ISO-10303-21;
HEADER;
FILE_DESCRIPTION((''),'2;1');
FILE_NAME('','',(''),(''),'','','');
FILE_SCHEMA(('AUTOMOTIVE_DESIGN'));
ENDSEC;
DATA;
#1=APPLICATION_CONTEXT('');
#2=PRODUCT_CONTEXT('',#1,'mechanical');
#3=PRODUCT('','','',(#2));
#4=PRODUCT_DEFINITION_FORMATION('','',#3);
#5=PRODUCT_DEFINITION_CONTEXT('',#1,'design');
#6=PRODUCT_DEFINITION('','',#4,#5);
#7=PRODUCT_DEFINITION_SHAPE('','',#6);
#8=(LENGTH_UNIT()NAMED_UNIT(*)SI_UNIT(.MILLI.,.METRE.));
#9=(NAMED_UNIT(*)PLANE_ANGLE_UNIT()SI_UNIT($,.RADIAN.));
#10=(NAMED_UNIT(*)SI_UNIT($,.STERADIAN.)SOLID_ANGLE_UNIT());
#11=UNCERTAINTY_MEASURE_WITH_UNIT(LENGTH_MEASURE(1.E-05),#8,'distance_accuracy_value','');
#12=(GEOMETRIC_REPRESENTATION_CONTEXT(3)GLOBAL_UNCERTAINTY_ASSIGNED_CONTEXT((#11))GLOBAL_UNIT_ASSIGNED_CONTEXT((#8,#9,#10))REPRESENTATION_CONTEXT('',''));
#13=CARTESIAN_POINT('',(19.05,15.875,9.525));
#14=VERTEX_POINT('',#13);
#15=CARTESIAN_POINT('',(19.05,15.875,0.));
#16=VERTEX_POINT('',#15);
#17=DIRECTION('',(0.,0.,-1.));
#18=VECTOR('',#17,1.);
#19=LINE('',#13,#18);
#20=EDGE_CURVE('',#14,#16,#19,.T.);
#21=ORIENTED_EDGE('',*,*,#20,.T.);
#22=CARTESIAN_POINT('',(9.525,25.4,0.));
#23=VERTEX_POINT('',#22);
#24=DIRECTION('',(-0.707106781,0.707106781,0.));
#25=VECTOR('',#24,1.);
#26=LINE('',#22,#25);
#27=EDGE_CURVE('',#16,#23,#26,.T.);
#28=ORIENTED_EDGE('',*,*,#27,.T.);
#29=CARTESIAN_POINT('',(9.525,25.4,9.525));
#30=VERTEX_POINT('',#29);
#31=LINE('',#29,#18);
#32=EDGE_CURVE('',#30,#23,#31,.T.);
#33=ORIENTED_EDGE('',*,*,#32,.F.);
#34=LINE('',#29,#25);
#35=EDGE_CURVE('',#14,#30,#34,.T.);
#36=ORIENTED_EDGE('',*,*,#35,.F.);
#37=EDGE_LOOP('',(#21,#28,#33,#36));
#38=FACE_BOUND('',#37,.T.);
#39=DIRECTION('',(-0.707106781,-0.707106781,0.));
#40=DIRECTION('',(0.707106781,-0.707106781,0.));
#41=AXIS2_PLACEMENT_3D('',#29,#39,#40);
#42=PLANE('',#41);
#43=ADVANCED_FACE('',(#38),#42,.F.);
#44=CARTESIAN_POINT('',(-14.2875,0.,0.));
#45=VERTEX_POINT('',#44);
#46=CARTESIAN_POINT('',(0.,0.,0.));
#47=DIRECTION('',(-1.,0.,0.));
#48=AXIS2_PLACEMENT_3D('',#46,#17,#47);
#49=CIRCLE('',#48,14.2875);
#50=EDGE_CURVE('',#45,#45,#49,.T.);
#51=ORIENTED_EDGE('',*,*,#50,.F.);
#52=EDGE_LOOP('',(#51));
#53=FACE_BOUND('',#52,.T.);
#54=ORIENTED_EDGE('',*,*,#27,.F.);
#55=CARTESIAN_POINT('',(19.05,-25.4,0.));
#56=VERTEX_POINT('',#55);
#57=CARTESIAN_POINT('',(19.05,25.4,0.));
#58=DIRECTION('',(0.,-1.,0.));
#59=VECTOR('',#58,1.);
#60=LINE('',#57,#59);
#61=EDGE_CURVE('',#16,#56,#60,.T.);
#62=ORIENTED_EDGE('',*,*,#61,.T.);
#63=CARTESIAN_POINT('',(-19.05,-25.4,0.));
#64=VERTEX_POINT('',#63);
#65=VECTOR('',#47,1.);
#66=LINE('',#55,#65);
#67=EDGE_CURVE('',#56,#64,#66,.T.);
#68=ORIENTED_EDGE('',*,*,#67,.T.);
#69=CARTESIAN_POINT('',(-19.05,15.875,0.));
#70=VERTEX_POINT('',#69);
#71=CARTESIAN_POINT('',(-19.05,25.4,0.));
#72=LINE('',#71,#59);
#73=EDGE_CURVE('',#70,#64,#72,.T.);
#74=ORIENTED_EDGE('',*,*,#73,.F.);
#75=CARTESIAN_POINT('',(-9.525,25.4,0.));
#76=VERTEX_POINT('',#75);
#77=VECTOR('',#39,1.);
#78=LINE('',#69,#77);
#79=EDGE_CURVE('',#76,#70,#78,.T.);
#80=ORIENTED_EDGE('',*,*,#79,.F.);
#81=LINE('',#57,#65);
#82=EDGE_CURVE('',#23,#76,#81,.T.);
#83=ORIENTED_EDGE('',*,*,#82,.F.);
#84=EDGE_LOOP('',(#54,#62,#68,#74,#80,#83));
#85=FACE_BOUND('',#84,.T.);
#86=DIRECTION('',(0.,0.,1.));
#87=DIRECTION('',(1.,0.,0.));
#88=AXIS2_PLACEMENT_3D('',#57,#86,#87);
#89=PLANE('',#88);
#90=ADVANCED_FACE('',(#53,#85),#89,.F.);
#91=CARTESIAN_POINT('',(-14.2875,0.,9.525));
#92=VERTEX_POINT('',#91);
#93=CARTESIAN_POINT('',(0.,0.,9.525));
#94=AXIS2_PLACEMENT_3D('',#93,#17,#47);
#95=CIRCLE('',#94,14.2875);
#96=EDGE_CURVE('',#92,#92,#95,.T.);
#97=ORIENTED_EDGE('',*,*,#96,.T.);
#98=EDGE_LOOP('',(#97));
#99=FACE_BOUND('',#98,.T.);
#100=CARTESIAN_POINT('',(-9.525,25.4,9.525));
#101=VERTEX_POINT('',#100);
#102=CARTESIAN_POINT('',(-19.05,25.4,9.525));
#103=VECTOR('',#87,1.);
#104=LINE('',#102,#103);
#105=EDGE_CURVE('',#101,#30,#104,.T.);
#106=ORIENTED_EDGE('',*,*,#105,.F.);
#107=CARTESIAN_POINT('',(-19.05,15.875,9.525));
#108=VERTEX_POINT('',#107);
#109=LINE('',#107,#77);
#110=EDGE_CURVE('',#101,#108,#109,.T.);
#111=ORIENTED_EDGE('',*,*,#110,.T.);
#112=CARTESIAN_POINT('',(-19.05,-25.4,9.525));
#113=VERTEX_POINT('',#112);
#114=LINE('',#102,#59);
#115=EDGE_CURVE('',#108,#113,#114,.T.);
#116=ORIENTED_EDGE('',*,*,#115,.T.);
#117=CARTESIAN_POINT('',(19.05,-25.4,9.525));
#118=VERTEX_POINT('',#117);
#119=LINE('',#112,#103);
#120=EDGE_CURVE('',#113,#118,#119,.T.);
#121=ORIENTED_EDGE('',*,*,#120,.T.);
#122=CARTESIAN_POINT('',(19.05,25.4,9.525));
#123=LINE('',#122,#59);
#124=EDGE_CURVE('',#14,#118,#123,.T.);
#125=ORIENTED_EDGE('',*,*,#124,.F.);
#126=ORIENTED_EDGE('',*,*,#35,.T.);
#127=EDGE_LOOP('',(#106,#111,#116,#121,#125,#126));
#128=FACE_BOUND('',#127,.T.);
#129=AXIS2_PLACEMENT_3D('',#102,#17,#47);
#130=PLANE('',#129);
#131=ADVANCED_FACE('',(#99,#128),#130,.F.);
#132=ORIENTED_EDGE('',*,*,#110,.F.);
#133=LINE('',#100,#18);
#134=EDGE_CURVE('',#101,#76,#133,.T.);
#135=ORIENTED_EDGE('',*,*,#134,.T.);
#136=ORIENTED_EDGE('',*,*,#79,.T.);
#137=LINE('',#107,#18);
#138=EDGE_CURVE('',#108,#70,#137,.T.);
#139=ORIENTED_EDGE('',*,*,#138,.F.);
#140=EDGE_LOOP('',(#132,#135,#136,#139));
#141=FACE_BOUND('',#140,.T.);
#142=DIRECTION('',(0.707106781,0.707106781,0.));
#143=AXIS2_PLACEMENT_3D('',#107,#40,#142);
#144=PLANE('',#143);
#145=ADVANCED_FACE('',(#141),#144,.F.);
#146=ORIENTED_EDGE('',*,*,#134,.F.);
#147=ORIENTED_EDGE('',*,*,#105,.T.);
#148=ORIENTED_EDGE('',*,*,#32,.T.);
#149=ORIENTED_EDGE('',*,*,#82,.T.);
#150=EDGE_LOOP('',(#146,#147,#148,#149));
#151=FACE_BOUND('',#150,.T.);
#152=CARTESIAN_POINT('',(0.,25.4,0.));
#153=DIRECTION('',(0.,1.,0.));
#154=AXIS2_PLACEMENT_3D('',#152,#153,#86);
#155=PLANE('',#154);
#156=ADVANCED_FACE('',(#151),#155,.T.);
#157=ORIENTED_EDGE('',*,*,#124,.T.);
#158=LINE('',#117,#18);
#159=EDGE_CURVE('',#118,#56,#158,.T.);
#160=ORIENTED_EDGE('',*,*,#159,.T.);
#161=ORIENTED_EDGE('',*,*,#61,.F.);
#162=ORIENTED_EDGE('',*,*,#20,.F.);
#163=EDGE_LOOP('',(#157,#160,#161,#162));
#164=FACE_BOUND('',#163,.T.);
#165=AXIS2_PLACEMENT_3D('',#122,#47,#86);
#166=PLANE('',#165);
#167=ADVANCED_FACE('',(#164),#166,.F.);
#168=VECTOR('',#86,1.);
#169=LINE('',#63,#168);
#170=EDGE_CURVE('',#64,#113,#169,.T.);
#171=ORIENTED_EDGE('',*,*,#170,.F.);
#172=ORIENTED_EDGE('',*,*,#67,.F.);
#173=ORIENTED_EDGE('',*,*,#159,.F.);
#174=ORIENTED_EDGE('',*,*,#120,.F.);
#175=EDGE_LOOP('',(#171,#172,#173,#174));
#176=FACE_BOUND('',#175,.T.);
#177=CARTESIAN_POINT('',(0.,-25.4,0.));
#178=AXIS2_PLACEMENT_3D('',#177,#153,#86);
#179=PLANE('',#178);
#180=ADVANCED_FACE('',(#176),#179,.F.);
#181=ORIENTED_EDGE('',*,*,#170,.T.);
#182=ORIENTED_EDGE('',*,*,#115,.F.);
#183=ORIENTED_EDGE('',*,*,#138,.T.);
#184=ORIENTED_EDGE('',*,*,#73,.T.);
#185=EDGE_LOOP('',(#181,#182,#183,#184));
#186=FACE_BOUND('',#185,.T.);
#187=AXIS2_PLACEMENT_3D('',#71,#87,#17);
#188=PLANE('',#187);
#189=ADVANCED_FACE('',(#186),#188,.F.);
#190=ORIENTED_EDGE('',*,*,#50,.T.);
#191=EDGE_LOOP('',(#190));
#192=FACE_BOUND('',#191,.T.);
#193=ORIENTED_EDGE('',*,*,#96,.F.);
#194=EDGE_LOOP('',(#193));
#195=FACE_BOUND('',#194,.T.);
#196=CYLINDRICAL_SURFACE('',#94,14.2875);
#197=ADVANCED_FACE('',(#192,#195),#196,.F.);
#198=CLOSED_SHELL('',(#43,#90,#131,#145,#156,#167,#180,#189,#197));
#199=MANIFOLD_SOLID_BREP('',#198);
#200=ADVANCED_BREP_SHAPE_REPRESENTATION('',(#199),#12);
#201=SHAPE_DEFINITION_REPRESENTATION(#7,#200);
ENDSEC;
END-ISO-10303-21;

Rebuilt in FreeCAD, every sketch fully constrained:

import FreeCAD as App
import Part
import Sketcher

V = App.Vector
Q = App.Units.Quantity


def add_polygon(sketch, points):
    """Adds a closed chain of lines whose ends are joined by coincident constraints."""
    first, n = sketch.GeometryCount, len(points)
    for a, b in zip(points, points[1:] + points[:1]):
        sketch.addGeometry(Part.LineSegment(App.Vector(*a, 0), App.Vector(*b, 0)), False)
    for i in range(n):
        sketch.addConstraint(Sketcher.Constraint("Coincident", first + i, 2, first + (i + 1) % n, 1))

doc = App.newDocument("Part")
params = doc.addObject("Spreadsheet::Sheet", "Params")
for row, (alias, value) in enumerate([
    ("sketch1_width", "1.5 in"),
    ("sketch1_height", "0.375 in"),
    ("pad1_length", "2 in"),
    ("sketch2_diameter", "1.125 in"),
    ("sketch3_width", "0.375 in"),
], start=1):
    params.set(f"A{row}", alias)
    params.set(f"B{row}", "=" + value)
    params.setAlias(f"B{row}", alias)

body = doc.addObject("PartDesign::Body", "Body")

sketch1 = body.newObject("Sketcher::SketchObject", "Sketch")
sketch1.AttachmentSupport = (doc.getObject("XZ_Plane"), [""])
sketch1.MapMode = "FlatFace"
add_polygon(sketch1, [(-19, 0), (-19, 10), (19, 10), (19, 0)])
sketch1.addConstraint(Sketcher.Constraint("Vertical", 0))
sketch1.addConstraint(Sketcher.Constraint("Horizontal", 1))
sketch1.addConstraint(Sketcher.Constraint("Vertical", 2))
sketch1.addConstraint(Sketcher.Constraint("Horizontal", 3))
sketch1.addConstraint(Sketcher.Constraint("Symmetric", 2, 2, 3, 2, -1, 1))
sketch1.addConstraint(Sketcher.Constraint("DistanceX", 1, 1, 1, 2, Q("1.5 in")))
sketch1.addConstraint(Sketcher.Constraint("DistanceY", 0, 1, 0, 2, Q("0.375 in")))
sketch1.setExpression("Constraints[9]", "Params.sketch1_width")
sketch1.setExpression("Constraints[10]", "Params.sketch1_height")
pad1 = body.newObject("PartDesign::Pad", "Pad")
pad1.Profile = sketch1
pad1.setExpression("Length", "Params.pad1_length")
pad1.Midplane = True

sketch2 = body.newObject("Sketcher::SketchObject", "Sketch001")
sketch2.AttachmentSupport = (doc.getObject("XY_Plane"), [""])
sketch2.MapMode = "FlatFace"
sketch2.addGeometry(Part.Circle(V(0, 0, 0), V(0, 0, 1), 14), False)
sketch2.addConstraint(Sketcher.Constraint("Coincident", 0, 3, -1, 1))
sketch2.addConstraint(Sketcher.Constraint("Diameter", 0, Q("1.125 in")))
sketch2.setExpression("Constraints[1]", "Params.sketch2_diameter")
pocket1 = body.newObject("PartDesign::Pocket", "Pocket")
pocket1.Profile = sketch2
pocket1.Type = "ThroughAll"
pocket1.Reversed = True

sketch3 = body.newObject("Sketcher::SketchObject", "Sketch002")
sketch3.AttachmentSupport = (doc.getObject("XY_Plane"), [""])
sketch3.MapMode = "FlatFace"
add_polygon(sketch3, [(19, 16), (10, 25), (19, 25)])
add_polygon(sketch3, [(-19, 25), (-10, 25), (-19, 16)])
sketch3.addConstraint(Sketcher.Constraint("Horizontal", 1))
sketch3.addConstraint(Sketcher.Constraint("Vertical", 2))
sketch3.addConstraint(Sketcher.Constraint("Horizontal", 3))
sketch3.addConstraint(Sketcher.Constraint("Vertical", 5))
sketch3.addConstraint(Sketcher.Constraint("Symmetric", 0, 2, 3, 2, -2))
sketch3.addConstraint(Sketcher.Constraint("Symmetric", 2, 2, 4, 2, -2))
sketch3.addConstraint(Sketcher.Constraint("Perpendicular", 0, 4))
sketch3.addConstraint(Sketcher.Constraint("DistanceY", -1, 1, 0, 2, Q("1 in")))
sketch3.addConstraint(Sketcher.Constraint("DistanceX", 4, 2, 2, 2, Q("1.5 in")))
sketch3.addConstraint(Sketcher.Constraint("DistanceX", 1, 1, 1, 2, Q("0.375 in")))
sketch3.setExpression("Constraints[15]", "Params.sketch3_width")
pocket2 = body.newObject("PartDesign::Pocket", "Pocket001")
pocket2.Profile = sketch3
pocket2.Type = "ThroughAll"
pocket2.Reversed = True

doc.recompute()
